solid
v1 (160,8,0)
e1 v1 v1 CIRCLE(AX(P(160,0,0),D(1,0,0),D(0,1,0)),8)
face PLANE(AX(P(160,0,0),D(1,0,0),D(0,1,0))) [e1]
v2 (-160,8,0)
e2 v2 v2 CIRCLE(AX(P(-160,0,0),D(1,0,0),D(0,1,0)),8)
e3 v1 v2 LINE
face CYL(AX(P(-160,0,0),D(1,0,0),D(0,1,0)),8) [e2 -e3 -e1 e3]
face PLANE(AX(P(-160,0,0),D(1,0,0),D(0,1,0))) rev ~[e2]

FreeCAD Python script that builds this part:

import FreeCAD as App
import Part
import Sketcher
from FreeCAD import Vector

doc = App.newDocument("Part")
body = doc.addObject("PartDesign::Body", "Body")

sketch1 = body.newObject("Sketcher::SketchObject", "Sketch")
sketch1.AttachmentSupport = (doc.getObject("XY_Plane"), [""])
sketch1.MapMode = "FlatFace"
sketch1.addGeometry(Part.LineSegment(Vector(160, 0, 0), Vector(160, 8, 0)), False)
sketch1.addGeometry(Part.LineSegment(Vector(160, 8, 0), Vector(-160, 8, 0)), False)
sketch1.addGeometry(Part.LineSegment(Vector(-160, 8, 0), Vector(-160, 0, 0)), False)
sketch1.addGeometry(Part.LineSegment(Vector(-160, 0, 0), Vector(160, 0, 0)), False)
sketch1.addConstraint(Sketcher.Constraint("Coincident", 0, 2, 1, 1))
sketch1.addConstraint(Sketcher.Constraint("Coincident", 1, 2, 2, 1))
sketch1.addConstraint(Sketcher.Constraint("Coincident", 2, 2, 3, 1))
sketch1.addConstraint(Sketcher.Constraint("Coincident", 3, 2, 0, 1))
sketch1.addConstraint(Sketcher.Constraint("Vertical", 0))
sketch1.addConstraint(Sketcher.Constraint("Horizontal", 1))
sketch1.addConstraint(Sketcher.Constraint("Vertical", 2))
sketch1.addConstraint(Sketcher.Constraint("Horizontal", 3))
sketch1.addConstraint(Sketcher.Constraint("Symmetric", 2, 2, 3, 2, -1, 1))
sketch1.addConstraint(Sketcher.Constraint("DistanceX", 1, 2, 1, 1, 320.0))
sketch1.addConstraint(Sketcher.Constraint("DistanceY", 0, 1, 0, 2, 8.0))
revolution = body.newObject("PartDesign::Revolution", "Revolution")
revolution.Profile = sketch1
revolution.ReferenceAxis = (sketch1, ["H_Axis"])
revolution.Angle = 360

doc.recompute()
